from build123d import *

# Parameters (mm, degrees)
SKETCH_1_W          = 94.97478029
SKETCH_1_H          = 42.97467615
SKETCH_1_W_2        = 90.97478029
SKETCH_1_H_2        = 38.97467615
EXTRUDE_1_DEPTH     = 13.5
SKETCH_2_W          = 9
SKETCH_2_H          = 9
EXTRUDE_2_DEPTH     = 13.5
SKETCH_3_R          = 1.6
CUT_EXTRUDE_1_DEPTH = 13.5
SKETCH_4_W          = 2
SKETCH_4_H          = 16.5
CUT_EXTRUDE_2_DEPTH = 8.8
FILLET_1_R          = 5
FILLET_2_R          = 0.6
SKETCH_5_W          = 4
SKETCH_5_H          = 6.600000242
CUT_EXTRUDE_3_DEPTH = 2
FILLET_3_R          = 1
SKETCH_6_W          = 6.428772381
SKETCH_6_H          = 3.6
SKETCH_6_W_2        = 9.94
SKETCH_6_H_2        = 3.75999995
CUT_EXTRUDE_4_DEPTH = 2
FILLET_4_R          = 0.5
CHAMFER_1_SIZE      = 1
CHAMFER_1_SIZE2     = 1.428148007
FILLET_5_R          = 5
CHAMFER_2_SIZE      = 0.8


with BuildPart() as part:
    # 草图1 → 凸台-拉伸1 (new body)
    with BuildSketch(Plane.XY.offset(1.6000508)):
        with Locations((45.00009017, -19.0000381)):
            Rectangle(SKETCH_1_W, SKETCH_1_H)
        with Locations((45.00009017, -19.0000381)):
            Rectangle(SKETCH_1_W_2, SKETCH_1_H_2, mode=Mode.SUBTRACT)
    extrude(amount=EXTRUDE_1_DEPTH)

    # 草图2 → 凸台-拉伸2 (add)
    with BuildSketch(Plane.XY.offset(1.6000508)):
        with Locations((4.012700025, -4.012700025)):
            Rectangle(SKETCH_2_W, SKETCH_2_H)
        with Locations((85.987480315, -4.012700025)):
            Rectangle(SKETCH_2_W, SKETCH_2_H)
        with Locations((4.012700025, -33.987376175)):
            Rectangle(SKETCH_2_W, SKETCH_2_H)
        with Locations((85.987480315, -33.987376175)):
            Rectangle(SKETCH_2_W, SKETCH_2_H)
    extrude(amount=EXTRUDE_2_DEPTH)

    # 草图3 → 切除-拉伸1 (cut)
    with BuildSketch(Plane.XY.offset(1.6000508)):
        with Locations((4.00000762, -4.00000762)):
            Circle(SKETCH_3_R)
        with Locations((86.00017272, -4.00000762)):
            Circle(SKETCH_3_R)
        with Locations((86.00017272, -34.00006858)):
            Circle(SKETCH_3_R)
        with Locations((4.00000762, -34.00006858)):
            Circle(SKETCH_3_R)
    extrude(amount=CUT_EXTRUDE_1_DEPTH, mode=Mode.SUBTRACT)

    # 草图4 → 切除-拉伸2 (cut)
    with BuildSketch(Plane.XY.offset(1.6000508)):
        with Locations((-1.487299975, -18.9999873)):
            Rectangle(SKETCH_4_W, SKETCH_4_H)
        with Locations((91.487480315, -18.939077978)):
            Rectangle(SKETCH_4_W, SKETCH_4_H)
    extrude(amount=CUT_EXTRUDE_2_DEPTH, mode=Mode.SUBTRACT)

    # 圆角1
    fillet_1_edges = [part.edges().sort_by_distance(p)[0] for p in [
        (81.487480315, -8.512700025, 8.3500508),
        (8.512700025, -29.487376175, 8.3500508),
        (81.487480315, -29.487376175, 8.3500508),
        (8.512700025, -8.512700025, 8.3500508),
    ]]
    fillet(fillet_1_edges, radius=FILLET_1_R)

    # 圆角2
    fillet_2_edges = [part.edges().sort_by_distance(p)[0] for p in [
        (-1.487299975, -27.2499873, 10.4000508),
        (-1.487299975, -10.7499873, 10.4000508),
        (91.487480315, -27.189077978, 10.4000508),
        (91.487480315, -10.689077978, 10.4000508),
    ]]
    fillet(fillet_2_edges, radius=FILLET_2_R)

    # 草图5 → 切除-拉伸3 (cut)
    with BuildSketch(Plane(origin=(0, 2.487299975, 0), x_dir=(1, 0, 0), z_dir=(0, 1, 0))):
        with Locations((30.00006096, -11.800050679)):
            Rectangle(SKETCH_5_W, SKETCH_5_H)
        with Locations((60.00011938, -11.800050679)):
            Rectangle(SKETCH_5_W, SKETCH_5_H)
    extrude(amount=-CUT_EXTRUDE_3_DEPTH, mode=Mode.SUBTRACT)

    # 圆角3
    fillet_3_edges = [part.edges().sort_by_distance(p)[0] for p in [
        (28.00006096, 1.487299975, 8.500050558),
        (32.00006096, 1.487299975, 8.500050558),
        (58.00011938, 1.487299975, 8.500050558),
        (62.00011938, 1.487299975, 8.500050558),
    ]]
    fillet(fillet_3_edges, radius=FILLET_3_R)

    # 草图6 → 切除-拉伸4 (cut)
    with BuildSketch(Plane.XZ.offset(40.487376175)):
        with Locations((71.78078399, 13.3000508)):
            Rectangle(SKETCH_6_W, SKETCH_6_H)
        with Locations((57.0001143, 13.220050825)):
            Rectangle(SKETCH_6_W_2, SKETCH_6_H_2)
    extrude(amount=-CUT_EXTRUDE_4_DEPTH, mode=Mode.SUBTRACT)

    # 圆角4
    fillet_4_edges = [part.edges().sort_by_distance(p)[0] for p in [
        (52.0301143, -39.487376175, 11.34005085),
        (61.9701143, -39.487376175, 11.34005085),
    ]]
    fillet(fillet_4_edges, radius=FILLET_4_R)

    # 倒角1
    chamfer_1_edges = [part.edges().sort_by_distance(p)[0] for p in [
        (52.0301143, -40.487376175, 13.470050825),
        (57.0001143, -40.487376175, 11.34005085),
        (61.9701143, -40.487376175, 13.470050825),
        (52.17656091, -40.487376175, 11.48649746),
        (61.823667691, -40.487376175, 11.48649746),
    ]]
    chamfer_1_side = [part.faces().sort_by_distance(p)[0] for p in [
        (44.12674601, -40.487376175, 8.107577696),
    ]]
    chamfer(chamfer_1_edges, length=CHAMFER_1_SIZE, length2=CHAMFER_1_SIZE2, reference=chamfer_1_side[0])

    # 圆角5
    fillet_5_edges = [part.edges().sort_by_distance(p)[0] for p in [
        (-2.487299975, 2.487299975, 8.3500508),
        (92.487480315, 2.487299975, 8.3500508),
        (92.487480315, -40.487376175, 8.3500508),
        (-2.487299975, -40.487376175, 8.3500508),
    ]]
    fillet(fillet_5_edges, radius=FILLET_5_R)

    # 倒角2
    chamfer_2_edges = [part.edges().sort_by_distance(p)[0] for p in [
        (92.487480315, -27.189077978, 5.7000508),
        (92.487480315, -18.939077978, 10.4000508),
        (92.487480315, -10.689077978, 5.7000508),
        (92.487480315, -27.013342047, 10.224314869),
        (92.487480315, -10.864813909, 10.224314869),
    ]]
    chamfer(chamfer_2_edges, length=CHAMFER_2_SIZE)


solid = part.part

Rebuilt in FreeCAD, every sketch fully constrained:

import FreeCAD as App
import Part
import Sketcher

V = App.Vector


def edges_at(feature, points):
    """Names of the edges that pass closest to the given points."""
    edges = feature.Shape.Edges
    near = lambda p: min(range(len(edges)), key=lambda i: edges[i].distToShape(Part.Vertex(*p))[0])
    return sorted({f"Edge{near(p) + 1}" for p in points})

doc = App.newDocument("Part")
body = doc.addObject("PartDesign::Body", "Body")

sketch1 = body.newObject("Sketcher::SketchObject", "Sketch")
sketch1.AttachmentSupport = (doc.getObject("XY_Plane"), [""])
sketch1.MapMode = "FlatFace"
sketch1.AttachmentOffset = App.Placement(V(0, 0, 1.600051), App.Rotation())
sketch1.addGeometry([
    Part.LineSegment(V(-2, 2, 0), V(-2, -40, 0)),
    Part.LineSegment(V(-2, -40, 0), V(92, -40, 0)),
    Part.LineSegment(V(92, -40, 0), V(92, 2, 0)),
    Part.LineSegment(V(92, 2, 0), V(-2, 2, 0)),
    Part.LineSegment(V(90, -38, 0), V(0, -38, 0)),
    Part.LineSegment(V(0, -38, 0), V(0, 0, 0)),
    Part.LineSegment(V(0, 0, 0), V(90, 0, 0)),
    Part.LineSegment(V(90, 0, 0), V(90, -38, 0)),
], False)
sketch1.addConstraint([
    Sketcher.Constraint("Coincident", 0, 2, 1, 1),
    Sketcher.Constraint("Coincident", 1, 2, 2, 1),
    Sketcher.Constraint("Coincident", 2, 2, 3, 1),
    Sketcher.Constraint("Coincident", 3, 2, 0, 1),
    Sketcher.Constraint("Coincident", 4, 2, 5, 1),
    Sketcher.Constraint("Coincident", 5, 2, 6, 1),
    Sketcher.Constraint("Coincident", 6, 2, 7, 1),
    Sketcher.Constraint("Coincident", 7, 2, 4, 1),
    Sketcher.Constraint("Vertical", 0),
    Sketcher.Constraint("Horizontal", 1),
    Sketcher.Constraint("Vertical", 2),
    Sketcher.Constraint("Horizontal", 3),
    Sketcher.Constraint("Horizontal", 4),
    Sketcher.Constraint("Vertical", 5),
    Sketcher.Constraint("Horizontal", 6),
    Sketcher.Constraint("Vertical", 7),
    Sketcher.Constraint("DistanceX", 0, 2, 4, 2, 2.0),
    Sketcher.Constraint("DistanceY", 0, 2, 4, 2, 2.0),
    Sketcher.Constraint("DistanceY", 5, 2, 3, 2, 2.0),
    Sketcher.Constraint("DistanceX", 6, 2, 2, 2, 2.0),
    Sketcher.Constraint("DistanceX", 1, 1, 1, 2, 94.97478),
    Sketcher.Constraint("DistanceX", 0, 2, -1, 1, 2.4873),
    Sketcher.Constraint("DistanceY", -1, 1, 2, 2, 2.4873),
    Sketcher.Constraint("DistanceY", 0, 2, 0, 1, 42.974676),
])
pad1 = body.newObject("PartDesign::Pad", "Pad")
pad1.Profile = sketch1
pad1.Length = 13.5

sketch2 = body.newObject("Sketcher::SketchObject", "Sketch001")
sketch2.AttachmentSupport = (doc.getObject("XY_Plane"), [""])
sketch2.MapMode = "FlatFace"
sketch2.AttachmentOffset = App.Placement(V(0, 0, 1.600051), App.Rotation())
sketch2.addGeometry([
    Part.LineSegment(V(0, 0, 0), V(0, -9, 0)),
    Part.LineSegment(V(0, -9, 0), V(9, -9, 0)),
    Part.LineSegment(V(9, -9, 0), V(9, 0, 0)),
    Part.LineSegment(V(9, 0, 0), V(0, 0, 0)),
    Part.LineSegment(V(81, 0, 0), V(81, -9, 0)),
    Part.LineSegment(V(81, -9, 0), V(90, -9, 0)),
    Part.LineSegment(V(90, -9, 0), V(90, 0, 0)),
    Part.LineSegment(V(90, 0, 0), V(81, 0, 0)),
    Part.LineSegment(V(0, -29, 0), V(0, -38, 0)),
    Part.LineSegment(V(0, -38, 0), V(9, -38, 0)),
    Part.LineSegment(V(9, -38, 0), V(9, -29, 0)),
    Part.LineSegment(V(9, -29, 0), V(0, -29, 0)),
    Part.LineSegment(V(81, -29, 0), V(81, -38, 0)),
    Part.LineSegment(V(81, -38, 0), V(90, -38, 0)),
    Part.LineSegment(V(90, -38, 0), V(90, -29, 0)),
    Part.LineSegment(V(90, -29, 0), V(81, -29, 0)),
], False)
sketch2.addConstraint([
    Sketcher.Constraint("Coincident", 0, 2, 1, 1),
    Sketcher.Constraint("Coincident", 1, 2, 2, 1),
    Sketcher.Constraint("Coincident", 2, 2, 3, 1),
    Sketcher.Constraint("Coincident", 3, 2, 0, 1),
    Sketcher.Constraint("Coincident", 4, 2, 5, 1),
    Sketcher.Constraint("Coincident", 5, 2, 6, 1),
    Sketcher.Constraint("Coincident", 6, 2, 7, 1),
    Sketcher.Constraint("Coincident", 7, 2, 4, 1),
    Sketcher.Constraint("Coincident", 8, 2, 9, 1),
    Sketcher.Constraint("Coincident", 9, 2, 10, 1),
    Sketcher.Constraint("Coincident", 10, 2, 11, 1),
    Sketcher.Constraint("Coincident", 11, 2, 8, 1),
    Sketcher.Constraint("Coincident", 12, 2, 13, 1),
    Sketcher.Constraint("Coincident", 13, 2, 14, 1),
    Sketcher.Constraint("Coincident", 14, 2, 15, 1),
    Sketcher.Constraint("Coincident", 15, 2, 12, 1),
    Sketcher.Constraint("Vertical", 0),
    Sketcher.Constraint("Horizontal", 1),
    Sketcher.Constraint("Vertical", 2),
    Sketcher.Constraint("Horizontal", 3),
    Sketcher.Constraint("Vertical", 4),
    Sketcher.Constraint("Horizontal", 5),
    Sketcher.Constraint("Vertical", 6),
    Sketcher.Constraint("Horizontal", 7),
    Sketcher.Constraint("Vertical", 8),
    Sketcher.Constraint("Horizontal", 9),
    Sketcher.Constraint("Vertical", 10),
    Sketcher.Constraint("Horizontal", 11),
    Sketcher.Constraint("Vertical", 12),
    Sketcher.Constraint("Horizontal", 13),
    Sketcher.Constraint("Vertical", 14),
    Sketcher.Constraint("Horizontal", 15),
    Sketcher.Constraint("Horizontal", 1, 2, 4, 2),
    Sketcher.Constraint("Horizontal", 3, 2, 6, 2),
    Sketcher.Constraint("Horizontal", 9, 2, 12, 2),
    Sketcher.Constraint("Horizontal", 11, 2, 14, 2),
    Sketcher.Constraint("Vertical", 3, 2, 8, 2),
    Sketcher.Constraint("Vertical", 2, 2, 9, 2),
    Sketcher.Constraint("Vertical", 7, 2, 12, 2),
    Sketcher.Constraint("Vertical", 6, 2, 13, 2),
    Sketcher.Constraint("Equal", 3, 5),
    Sketcher.Constraint("Equal", 15, 0),
    Sketcher.Constraint("Equal", 6, 8),
    Sketcher.Constraint("DistanceX", 1, 1, 1, 2, 9.0),
    Sketcher.Constraint("DistanceX", 0, 2, -1, 1, 0.4873),
    Sketcher.Constraint("DistanceY", 0, 2, -1, 1, 8.5127),
    Sketcher.Constraint("DistanceX", -1, 1, 4, 2, 81.48748),
    Sketcher.Constraint("DistanceY", 8, 2, -1, 1, 38.487376),
])
pad2 = body.newObject("PartDesign::Pad", "Pad001")
pad2.Profile = sketch2
pad2.Length = 13.5

sketch3 = body.newObject("Sketcher::SketchObject", "Sketch002")
sketch3.AttachmentSupport = (doc.getObject("XY_Plane"), [""])
sketch3.MapMode = "FlatFace"
sketch3.AttachmentOffset = App.Placement(V(0, 0, 1.600051), App.Rotation())
sketch3.addGeometry([
    Part.Circle(V(4, -4, 0), V(0, 0, 1), 1.6),
    Part.Circle(V(86, -4, 0), V(0, 0, 1), 1.6),
    Part.Circle(V(86, -34, 0), V(0, 0, 1), 1.6),
    Part.Circle(V(4, -34, 0), V(0, 0, 1), 1.6),
], False)
sketch3.addConstraint([
    Sketcher.Constraint("Equal", 0, 1),
    Sketcher.Constraint("Equal", 1, 2),
    Sketcher.Constraint("Equal", 2, 3),
    Sketcher.Constraint("Horizontal", 0, 3, 1, 3),
    Sketcher.Constraint("Horizontal", 2, 3, 3, 3),
    Sketcher.Constraint("Vertical", 1, 3, 2, 3),
    Sketcher.Constraint("Vertical", 0, 3, 3, 3),
    Sketcher.Constraint("Diameter", 0, 3.2),
    Sketcher.Constraint("DistanceY", 2, 3, -1, 1, 34.000069),
    Sketcher.Constraint("DistanceY", 2, 3, 1, 3, 30.000061),
    Sketcher.Constraint("DistanceX", -1, 1, 0, 3, 4.000008),
    Sketcher.Constraint("DistanceX", -1, 1, 1, 3, 86.000173),
])
pocket1 = body.newObject("PartDesign::Pocket", "Pocket")
pocket1.Profile = sketch3
pocket1.Length = 13.5
pocket1.Reversed = True

sketch4 = body.newObject("Sketcher::SketchObject", "Sketch003")
sketch4.AttachmentSupport = (doc.getObject("XY_Plane"), [""])
sketch4.MapMode = "FlatFace"
sketch4.AttachmentOffset = App.Placement(V(0, 0, 1.600051), App.Rotation())
sketch4.addGeometry([
    Part.LineSegment(V(-2.5, -10.7, 0), V(-2.5, -27.2, 0)),
    Part.LineSegment(V(-2.5, -27.2, 0), V(-0.5, -27.2, 0)),
    Part.LineSegment(V(-0.5, -27.2, 0), V(-0.5, -10.7, 0)),
    Part.LineSegment(V(-0.5, -10.7, 0), V(-2.5, -10.7, 0)),
    Part.LineSegment(V(90.5, -10.7, 0), V(90.5, -27.2, 0)),
    Part.LineSegment(V(90.5, -27.2, 0), V(92.5, -27.2, 0)),
    Part.LineSegment(V(92.5, -27.2, 0), V(92.5, -10.7, 0)),
    Part.LineSegment(V(92.5, -10.7, 0), V(90.5, -10.7, 0)),
], False)
sketch4.addConstraint([
    Sketcher.Constraint("Coincident", 0, 2, 1, 1),
    Sketcher.Constraint("Coincident", 1, 2, 2, 1),
    Sketcher.Constraint("Coincident", 2, 2, 3, 1),
    Sketcher.Constraint("Coincident", 3, 2, 0, 1),
    Sketcher.Constraint("Coincident", 4, 2, 5, 1),
    Sketcher.Constraint("Coincident", 5, 2, 6, 1),
    Sketcher.Constraint("Coincident", 6, 2, 7, 1),
    Sketcher.Constraint("Coincident", 7, 2, 4, 1),
    Sketcher.Constraint("Vertical", 0),
    Sketcher.Constraint("Horizontal", 1),
    Sketcher.Constraint("Vertical", 2),
    Sketcher.Constraint("Horizontal", 3),
    Sketcher.Constraint("Vertical", 4),
    Sketcher.Constraint("Horizontal", 5),
    Sketcher.Constraint("Vertical", 6),
    Sketcher.Constraint("Horizontal", 7),
    Sketcher.Constraint("Equal", 3, 5),
    Sketcher.Constraint("Equal", 2, 4),
    Sketcher.Constraint("DistanceX", 1, 1, 1, 2, 2.0),
    Sketcher.Constraint("DistanceY", 0, 2, 0, 1, 16.5),
    Sketcher.Constraint("DistanceX", 0, 2, -1, 1, 2.4873),
    Sketcher.Constraint("DistanceX", -1, 1, 4, 2, 90.48748),
    Sketcher.Constraint("DistanceY", 1, 2, 4, 2, 0.060909),
    Sketcher.Constraint("DistanceY", 0, 2, -1, 1, 27.249987),
])
pocket2 = body.newObject("PartDesign::Pocket", "Pocket001")
pocket2.Profile = sketch4
pocket2.Length = 8.8
pocket2.Reversed = True
doc.recompute()

fillet = body.newObject("PartDesign::Fillet", "Fillet")
fillet.Base = (pocket2, edges_at(pocket2, [
    (81.487, -8.513, 8.35),
    (8.513, -29.487, 8.35),
    (81.487, -29.487, 8.35),
    (8.513, -8.513, 8.35),
]))
fillet.Radius = 5
doc.recompute()

fillet2 = body.newObject("PartDesign::Fillet", "Fillet001")
fillet2.Base = (fillet, edges_at(fillet, [
    (-1.487, -27.25, 10.4),
    (-1.487, -10.75, 10.4),
    (91.487, -27.189, 10.4),
    (91.487, -10.689, 10.4),
]))
fillet2.Radius = 0.6

sketch5 = body.newObject("Sketcher::SketchObject", "Sketch004")
sketch5.AttachmentSupport = (doc.getObject("XZ_Plane"), [""])
sketch5.MapMode = "FlatFace"
sketch5.AttachmentOffset = App.Placement(V(0, 0, -2.4873), App.Rotation())
sketch5.addGeometry([
    Part.LineSegment(V(28, 8.5, 0), V(28, 15.1, 0)),
    Part.LineSegment(V(28, 15.1, 0), V(32, 15.1, 0)),
    Part.LineSegment(V(32, 15.1, 0), V(32, 8.5, 0)),
    Part.LineSegment(V(32, 8.5, 0), V(28, 8.5, 0)),
    Part.LineSegment(V(58, 8.5, 0), V(58, 15.1, 0)),
    Part.LineSegment(V(58, 15.1, 0), V(62, 15.1, 0)),
    Part.LineSegment(V(62, 15.1, 0), V(62, 8.5, 0)),
    Part.LineSegment(V(62, 8.5, 0), V(58, 8.5, 0)),
], False)
sketch5.addConstraint([
    Sketcher.Constraint("Coincident", 0, 2, 1, 1),
    Sketcher.Constraint("Coincident", 1, 2, 2, 1),
    Sketcher.Constraint("Coincident", 2, 2, 3, 1),
    Sketcher.Constraint("Coincident", 3, 2, 0, 1),
    Sketcher.Constraint("Coincident", 4, 2, 5, 1),
    Sketcher.Constraint("Coincident", 5, 2, 6, 1),
    Sketcher.Constraint("Coincident", 6, 2, 7, 1),
    Sketcher.Constraint("Coincident", 7, 2, 4, 1),
    Sketcher.Constraint("Vertical", 0),
    Sketcher.Constraint("Horizontal", 1),
    Sketcher.Constraint("Vertical", 2),
    Sketcher.Constraint("Horizontal", 3),
    Sketcher.Constraint("Vertical", 4),
    Sketcher.Constraint("Horizontal", 5),
    Sketcher.Constraint("Vertical", 6),
    Sketcher.Constraint("Horizontal", 7),
    Sketcher.Constraint("Horizontal", 1, 2, 4, 2),
    Sketcher.Constraint("Horizontal", 3, 2, 6, 2),
    Sketcher.Constraint("Equal", 3, 5),
    Sketcher.Constraint("DistanceX", 1, 1, 1, 2, 4.0),
    Sketcher.Constraint("DistanceY", 0, 1, 0, 2, 6.6),
    Sketcher.Constraint("DistanceX", -1, 1, 0, 2, 28.000061),
    Sketcher.Constraint("DistanceY", -1, 1, 0, 2, 15.100051),
    Sketcher.Constraint("DistanceX", -1, 1, 4, 2, 58.000119),
])
pocket3 = body.newObject("PartDesign::Pocket", "Pocket002")
pocket3.Profile = sketch5
pocket3.Length = 2
pocket3.Reversed = True
doc.recompute()

fillet3 = body.newObject("PartDesign::Fillet", "Fillet002")
fillet3.Base = (pocket3, edges_at(pocket3, [
    (28, 1.487, 8.5),
    (32, 1.487, 8.5),
    (58, 1.487, 8.5),
    (62, 1.487, 8.5),
]))
fillet3.Radius = 1

sketch6 = body.newObject("Sketcher::SketchObject", "Sketch005")
sketch6.AttachmentSupport = (doc.getObject("XZ_Plane"), [""])
sketch6.MapMode = "FlatFace"
sketch6.AttachmentOffset = App.Placement(V(0, 0, 40.487376), App.Rotation())
sketch6.addGeometry([
    Part.LineSegment(V(68.6, 15.1, 0), V(68.6, 11.5, 0)),
    Part.LineSegment(V(68.6, 11.5, 0), V(75, 11.5, 0)),
    Part.LineSegment(V(75, 11.5, 0), V(75, 15.1, 0)),
    Part.LineSegment(V(75, 15.1, 0), V(68.6, 15.1, 0)),
    Part.LineSegment(V(52, 15.1, 0), V(52, 11.3, 0)),
    Part.LineSegment(V(52, 11.3, 0), V(62, 11.3, 0)),
    Part.LineSegment(V(62, 11.3, 0), V(62, 15.1, 0)),
    Part.LineSegment(V(62, 15.1, 0), V(52, 15.1, 0)),
], False)
sketch6.addConstraint([
    Sketcher.Constraint("Coincident", 0, 2, 1, 1),
    Sketcher.Constraint("Coincident", 1, 2, 2, 1),
    Sketcher.Constraint("Coincident", 2, 2, 3, 1),
    Sketcher.Constraint("Coincident", 3, 2, 0, 1),
    Sketcher.Constraint("Coincident", 4, 2, 5, 1),
    Sketcher.Constraint("Coincident", 5, 2, 6, 1),
    Sketcher.Constraint("Coincident", 6, 2, 7, 1),
    Sketcher.Constraint("Coincident", 7, 2, 4, 1),
    Sketcher.Constraint("Vertical", 0),
    Sketcher.Constraint("Horizontal", 1),
    Sketcher.Constraint("Vertical", 2),
    Sketcher.Constraint("Horizontal", 3),
    Sketcher.Constraint("Vertical", 4),
    Sketcher.Constraint("Horizontal", 5),
    Sketcher.Constraint("Vertical", 6),
    Sketcher.Constraint("Horizontal", 7),
    Sketcher.Constraint("Horizontal", 3, 2, 6, 2),
    Sketcher.Constraint("DistanceY", 0, 2, 0, 1, 3.6),
    Sketcher.Constraint("DistanceX", 5, 1, 5, 2, 9.94),
    Sketcher.Constraint("DistanceY", 4, 2, 4, 1, 3.76),
    Sketcher.Constraint("DistanceX", 1, 1, 1, 2, 6.428772),
    Sketcher.Constraint("DistanceY", -1, 1, 0, 2, 11.500051),
    Sketcher.Constraint("DistanceX", -1, 1, 1, 2, 74.99517),
    Sketcher.Constraint("DistanceX", -1, 1, 4, 2, 52.030114),
])
pocket4 = body.newObject("PartDesign::Pocket", "Pocket003")
pocket4.Profile = sketch6
pocket4.Length = 2
doc.recompute()

fillet4 = body.newObject("PartDesign::Fillet", "Fillet003")
fillet4.Base = (pocket4, edges_at(pocket4, [(52.03, -39.487, 11.34), (61.97, -39.487, 11.34)]))
fillet4.Radius = 0.5
doc.recompute()

chamfer = body.newObject("PartDesign::Chamfer", "Chamfer")
chamfer.Base = (fillet4, edges_at(fillet4, [
    (52.03, -40.487, 13.47),
    (57, -40.487, 11.34),
    (61.97, -40.487, 13.47),
    (52.177, -40.487, 11.486),
    (61.824, -40.487, 11.486),
]))
chamfer.ChamferType = "Two distances"
chamfer.Size = 1
chamfer.Size2 = 1.428148
doc.recompute()

fillet5 = body.newObject("PartDesign::Fillet", "Fillet004")
fillet5.Base = (chamfer, edges_at(chamfer, [
    (-2.487, 2.487, 8.35),
    (92.487, 2.487, 8.35),
    (92.487, -40.487, 8.35),
    (-2.487, -40.487, 8.35),
]))
fillet5.Radius = 5
doc.recompute()

chamfer2 = body.newObject("PartDesign::Chamfer", "Chamfer001")
chamfer2.Base = (fillet5, edges_at(fillet5, [
    (92.487, -27.189, 5.7),
    (92.487, -18.939, 10.4),
    (92.487, -10.689, 5.7),
    (92.487, -27.013, 10.224),
    (92.487, -10.865, 10.224),
]))
chamfer2.Size = 0.8

doc.recompute()
